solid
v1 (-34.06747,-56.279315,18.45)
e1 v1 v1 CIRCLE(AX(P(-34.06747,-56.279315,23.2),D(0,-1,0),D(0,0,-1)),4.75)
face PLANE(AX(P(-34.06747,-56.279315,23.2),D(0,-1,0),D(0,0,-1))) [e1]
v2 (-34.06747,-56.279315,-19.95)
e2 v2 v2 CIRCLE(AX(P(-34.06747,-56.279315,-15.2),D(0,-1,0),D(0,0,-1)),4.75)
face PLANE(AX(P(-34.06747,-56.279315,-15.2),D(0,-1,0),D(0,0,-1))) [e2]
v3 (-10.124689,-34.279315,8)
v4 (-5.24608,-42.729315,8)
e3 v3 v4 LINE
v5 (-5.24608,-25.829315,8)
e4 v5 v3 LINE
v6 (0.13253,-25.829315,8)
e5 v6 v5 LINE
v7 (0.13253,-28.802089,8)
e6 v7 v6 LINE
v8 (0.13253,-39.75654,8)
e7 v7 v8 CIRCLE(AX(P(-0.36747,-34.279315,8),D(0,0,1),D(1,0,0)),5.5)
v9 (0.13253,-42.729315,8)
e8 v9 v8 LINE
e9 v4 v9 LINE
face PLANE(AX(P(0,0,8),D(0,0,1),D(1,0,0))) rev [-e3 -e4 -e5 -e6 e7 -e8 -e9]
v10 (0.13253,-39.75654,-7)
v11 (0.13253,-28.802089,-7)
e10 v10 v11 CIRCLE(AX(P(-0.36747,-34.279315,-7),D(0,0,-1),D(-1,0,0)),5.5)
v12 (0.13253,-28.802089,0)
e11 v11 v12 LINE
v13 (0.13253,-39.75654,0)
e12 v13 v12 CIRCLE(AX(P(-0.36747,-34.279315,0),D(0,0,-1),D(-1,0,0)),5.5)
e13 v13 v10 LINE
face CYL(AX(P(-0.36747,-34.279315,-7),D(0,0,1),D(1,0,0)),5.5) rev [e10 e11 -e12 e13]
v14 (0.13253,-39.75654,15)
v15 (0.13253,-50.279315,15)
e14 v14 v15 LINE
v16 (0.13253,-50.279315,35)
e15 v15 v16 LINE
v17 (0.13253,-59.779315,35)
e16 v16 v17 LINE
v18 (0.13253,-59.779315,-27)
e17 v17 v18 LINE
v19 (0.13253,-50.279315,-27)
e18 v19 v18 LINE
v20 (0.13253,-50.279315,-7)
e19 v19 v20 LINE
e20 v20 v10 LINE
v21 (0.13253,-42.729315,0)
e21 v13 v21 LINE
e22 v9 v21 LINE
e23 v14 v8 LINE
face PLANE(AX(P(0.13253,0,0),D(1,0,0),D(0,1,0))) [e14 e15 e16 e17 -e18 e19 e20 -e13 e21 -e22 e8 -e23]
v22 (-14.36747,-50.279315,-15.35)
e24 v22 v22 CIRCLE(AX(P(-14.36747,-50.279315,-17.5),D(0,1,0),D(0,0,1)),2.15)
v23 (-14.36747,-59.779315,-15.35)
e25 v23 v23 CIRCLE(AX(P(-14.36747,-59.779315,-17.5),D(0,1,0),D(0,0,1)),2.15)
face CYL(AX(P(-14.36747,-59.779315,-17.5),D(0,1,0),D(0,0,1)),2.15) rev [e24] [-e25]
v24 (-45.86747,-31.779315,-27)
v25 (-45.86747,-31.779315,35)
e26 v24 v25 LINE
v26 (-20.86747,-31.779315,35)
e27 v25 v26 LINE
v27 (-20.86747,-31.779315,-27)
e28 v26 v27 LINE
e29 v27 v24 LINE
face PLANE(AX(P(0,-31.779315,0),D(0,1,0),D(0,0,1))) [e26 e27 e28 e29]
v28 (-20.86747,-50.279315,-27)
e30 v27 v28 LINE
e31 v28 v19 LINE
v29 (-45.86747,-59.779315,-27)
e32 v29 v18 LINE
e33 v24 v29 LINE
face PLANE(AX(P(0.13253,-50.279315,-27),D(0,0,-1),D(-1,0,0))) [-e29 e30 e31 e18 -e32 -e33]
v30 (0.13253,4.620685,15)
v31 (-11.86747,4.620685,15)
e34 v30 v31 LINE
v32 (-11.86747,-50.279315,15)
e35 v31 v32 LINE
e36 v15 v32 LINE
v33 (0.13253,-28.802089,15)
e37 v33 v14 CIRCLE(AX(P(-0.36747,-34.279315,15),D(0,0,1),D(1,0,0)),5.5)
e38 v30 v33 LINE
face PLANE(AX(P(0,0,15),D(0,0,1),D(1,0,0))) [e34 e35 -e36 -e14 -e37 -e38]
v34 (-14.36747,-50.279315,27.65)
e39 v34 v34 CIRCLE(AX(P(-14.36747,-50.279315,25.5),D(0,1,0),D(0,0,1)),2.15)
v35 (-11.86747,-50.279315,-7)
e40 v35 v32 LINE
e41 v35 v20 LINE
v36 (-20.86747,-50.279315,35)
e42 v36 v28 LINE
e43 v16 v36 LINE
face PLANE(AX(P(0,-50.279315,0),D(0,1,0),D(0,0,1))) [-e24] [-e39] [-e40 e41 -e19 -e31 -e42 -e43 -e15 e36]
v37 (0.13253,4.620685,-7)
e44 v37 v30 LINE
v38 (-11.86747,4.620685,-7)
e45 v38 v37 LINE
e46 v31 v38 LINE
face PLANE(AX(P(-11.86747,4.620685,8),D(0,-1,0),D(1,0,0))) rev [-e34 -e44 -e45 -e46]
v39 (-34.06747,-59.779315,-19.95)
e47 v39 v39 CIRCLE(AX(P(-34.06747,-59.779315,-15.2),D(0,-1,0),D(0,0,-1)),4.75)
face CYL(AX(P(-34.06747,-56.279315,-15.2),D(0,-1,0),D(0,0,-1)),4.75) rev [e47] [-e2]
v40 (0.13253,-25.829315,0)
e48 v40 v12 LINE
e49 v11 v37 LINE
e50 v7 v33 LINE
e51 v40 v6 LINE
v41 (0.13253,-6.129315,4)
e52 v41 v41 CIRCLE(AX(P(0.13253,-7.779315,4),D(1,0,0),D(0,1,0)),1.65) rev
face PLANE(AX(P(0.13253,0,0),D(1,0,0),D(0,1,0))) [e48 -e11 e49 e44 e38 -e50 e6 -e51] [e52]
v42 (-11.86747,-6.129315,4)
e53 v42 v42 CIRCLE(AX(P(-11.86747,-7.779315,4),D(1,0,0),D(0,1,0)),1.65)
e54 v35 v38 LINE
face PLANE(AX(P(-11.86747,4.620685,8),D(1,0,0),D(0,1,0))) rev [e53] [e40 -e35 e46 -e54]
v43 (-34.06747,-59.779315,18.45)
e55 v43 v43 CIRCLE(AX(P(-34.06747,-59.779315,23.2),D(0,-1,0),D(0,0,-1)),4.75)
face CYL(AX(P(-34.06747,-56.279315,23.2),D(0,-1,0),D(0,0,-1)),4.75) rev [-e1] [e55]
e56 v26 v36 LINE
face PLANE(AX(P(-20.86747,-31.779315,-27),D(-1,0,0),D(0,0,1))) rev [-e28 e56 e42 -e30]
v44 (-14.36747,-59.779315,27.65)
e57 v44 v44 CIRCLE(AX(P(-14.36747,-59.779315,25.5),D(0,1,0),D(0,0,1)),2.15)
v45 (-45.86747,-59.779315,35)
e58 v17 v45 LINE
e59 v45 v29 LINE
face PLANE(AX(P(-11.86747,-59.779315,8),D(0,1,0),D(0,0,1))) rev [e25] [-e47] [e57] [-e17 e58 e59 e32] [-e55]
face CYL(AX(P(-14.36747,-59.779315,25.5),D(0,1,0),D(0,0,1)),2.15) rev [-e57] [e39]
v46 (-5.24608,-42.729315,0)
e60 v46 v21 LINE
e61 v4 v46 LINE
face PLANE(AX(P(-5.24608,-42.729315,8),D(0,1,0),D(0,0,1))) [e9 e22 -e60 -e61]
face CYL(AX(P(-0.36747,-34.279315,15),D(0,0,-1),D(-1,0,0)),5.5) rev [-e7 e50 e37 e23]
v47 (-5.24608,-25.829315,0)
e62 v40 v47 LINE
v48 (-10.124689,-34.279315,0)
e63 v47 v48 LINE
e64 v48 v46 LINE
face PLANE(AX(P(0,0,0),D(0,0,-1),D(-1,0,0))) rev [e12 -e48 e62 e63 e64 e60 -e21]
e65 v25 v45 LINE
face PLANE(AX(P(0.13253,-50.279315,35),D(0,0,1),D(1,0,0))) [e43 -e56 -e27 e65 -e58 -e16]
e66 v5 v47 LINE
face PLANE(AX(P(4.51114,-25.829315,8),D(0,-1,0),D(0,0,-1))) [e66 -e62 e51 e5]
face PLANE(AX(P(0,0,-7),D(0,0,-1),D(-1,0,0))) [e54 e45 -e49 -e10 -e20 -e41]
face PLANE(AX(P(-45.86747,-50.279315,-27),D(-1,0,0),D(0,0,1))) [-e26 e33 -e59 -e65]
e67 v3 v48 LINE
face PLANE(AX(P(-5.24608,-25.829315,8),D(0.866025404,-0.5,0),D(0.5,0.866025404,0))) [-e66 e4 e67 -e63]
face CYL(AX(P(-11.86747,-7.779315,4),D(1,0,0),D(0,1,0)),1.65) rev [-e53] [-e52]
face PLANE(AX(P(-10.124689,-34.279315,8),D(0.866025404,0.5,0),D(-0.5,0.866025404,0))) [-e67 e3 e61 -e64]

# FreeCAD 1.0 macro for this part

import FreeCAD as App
import Part
import Sketcher
Q = App.Units.Quantity


def add_polygon(sketch, points):
    """Adds a closed chain of lines whose ends are joined by coincident constraints."""
    first, n = sketch.GeometryCount, len(points)
    for a, b in zip(points, points[1:] + points[:1]):
        sketch.addGeometry(Part.LineSegment(App.Vector(*a, 0), App.Vector(*b, 0)), False)
    for i in range(n):
        sketch.addConstraint(Sketcher.Constraint("Coincident", first + i, 2, first + (i + 1) % n, 1))

doc = App.newDocument("Part")
body = doc.addObject("PartDesign::Body", "Body")

sketch1 = doc.addObject("Sketcher::SketchObject", "Sketch")
body.addObject(sketch1)
sketch1.AttachmentSupport = (doc.XY_Plane, [""])
sketch1.MapMode = "FlatFace"
add_polygon(sketch1, [(-12, 5), (-12, -60), (11, -60), (11, 5)])
add_polygon(sketch1, [(5, -26), (9, -34), (5, -43), (-5, -43), (-10, -34), (-5, -26)])
sketch1.addConstraint(Sketcher.Constraint("Vertical", 0))
sketch1.addConstraint(Sketcher.Constraint("Horizontal", 1))
sketch1.addConstraint(Sketcher.Constraint("Vertical", 2))
sketch1.addConstraint(Sketcher.Constraint("Horizontal", 3))
sketch1.addConstraint(Sketcher.Constraint("Horizontal", 6))
sketch1.addConstraint(Sketcher.Constraint("Horizontal", 9))
sketch1.addConstraint(Sketcher.Constraint("Parallel", 4, 7))
sketch1.addConstraint(Sketcher.Constraint("Parallel", 5, 8))
sketch1.addConstraint(Sketcher.Constraint("Horizontal", 4, 2, 7, 2))
sketch1.addConstraint(Sketcher.Constraint("Vertical", 6, 2, 8, 2))
sketch1.addConstraint(Sketcher.Constraint("Vertical", 5, 2, 9, 2))
sketch1.addConstraint(Sketcher.Constraint("DistanceX", 1, 1, 1, 2, 23.0))
sketch1.addConstraint(Sketcher.Constraint("Angle", 4, Q("-60 deg")))
sketch1.addConstraint(Sketcher.Constraint("DistanceY", 0, 2, 0, 1, 64.4))
sketch1.addConstraint(Sketcher.Constraint("DistanceY", 1, 2, 4, 2, 25.5))
sketch1.addConstraint(Sketcher.Constraint("DistanceY", 6, 2, 8, 2, 16.9))
sketch1.addConstraint(Sketcher.Constraint("DistanceX", 6, 2, 6, 1, 9.75722))
sketch1.addConstraint(Sketcher.Constraint("DistanceX", 0, 2, -1, 1, 11.86747))
sketch1.addConstraint(Sketcher.Constraint("DistanceX", -1, 1, 4, 2, 9.38975))
sketch1.addConstraint(Sketcher.Constraint("DistanceY", 0, 2, -1, 1, 59.779315))
pad1 = doc.addObject("PartDesign::Pad", "Pad")
body.addObject(pad1)
pad1.Profile = sketch1
pad1.Length = 8

sketch2 = doc.addObject("Sketcher::SketchObject", "Sketch001")
body.addObject(sketch2)
sketch2.AttachmentSupport = (doc.XY_Plane, [""])
sketch2.MapMode = "FlatFace"
sketch2.AttachmentOffset = App.Placement(App.Vector(0, 0, 8), App.Rotation())
add_polygon(sketch2, [(-12, 5), (-12, -60), (11, -60), (11, 5)])
sketch2.addGeometry(Part.Circle(App.Vector(0, -34, 0), App.Vector(0, 0, 1), 6), False)
sketch2.addConstraint(Sketcher.Constraint("Vertical", 0))
sketch2.addConstraint(Sketcher.Constraint("Horizontal", 1))
sketch2.addConstraint(Sketcher.Constraint("Vertical", 2))
sketch2.addConstraint(Sketcher.Constraint("Horizontal", 3))
sketch2.addConstraint(Sketcher.Constraint("Diameter", 4, 11.0))
sketch2.addConstraint(Sketcher.Constraint("DistanceX", 1, 1, 1, 2, 23.0))
sketch2.addConstraint(Sketcher.Constraint("DistanceY", 0, 2, 0, 1, 64.4))
sketch2.addConstraint(Sketcher.Constraint("DistanceX", 0, 2, 4, 3, 11.5))
sketch2.addConstraint(Sketcher.Constraint("DistanceY", 0, 2, 4, 3, 25.5))
sketch2.addConstraint(Sketcher.Constraint("DistanceX", 4, 3, -1, 1, 0.36747))
sketch2.addConstraint(Sketcher.Constraint("DistanceY", 4, 3, -1, 1, 34.279315))
pad2 = doc.addObject("PartDesign::Pad", "Pad001")
body.addObject(pad2)
pad2.Profile = sketch2
pad2.Length = 7

sketch3 = doc.addObject("Sketcher::SketchObject", "Sketch002")
body.addObject(sketch3)
sketch3.AttachmentSupport = (doc.XY_Plane, [""])
sketch3.MapMode = "FlatFace"
add_polygon(sketch3, [(11, 5), (11, -60), (-12, -60), (-12, 5)])
sketch3.addGeometry(Part.Circle(App.Vector(0, -34, 0), App.Vector(0, 0, 1), 6), False)
sketch3.addConstraint(Sketcher.Constraint("Vertical", 0))
sketch3.addConstraint(Sketcher.Constraint("Horizontal", 1))
sketch3.addConstraint(Sketcher.Constraint("Vertical", 2))
sketch3.addConstraint(Sketcher.Constraint("Horizontal", 3))
sketch3.addConstraint(Sketcher.Constraint("Diameter", 4, 11.0))
sketch3.addConstraint(Sketcher.Constraint("DistanceX", 1, 2, 1, 1, 23.0))
sketch3.addConstraint(Sketcher.Constraint("DistanceY", 0, 2, 0, 1, 64.4))
sketch3.addConstraint(Sketcher.Constraint("DistanceX", 4, 3, 0, 2, 11.5))
sketch3.addConstraint(Sketcher.Constraint("DistanceY", 0, 2, 4, 3, 25.5))
sketch3.addConstraint(Sketcher.Constraint("DistanceX", 4, 3, -1, 1, 0.36747))
sketch3.addConstraint(Sketcher.Constraint("DistanceY", 4, 3, -1, 1, 34.279315))
pad3 = doc.addObject("PartDesign::Pad", "Pad002")
body.addObject(pad3)
pad3.Profile = sketch3
pad3.Length = 7
pad3.Reversed = True

sketch4 = doc.addObject("Sketcher::SketchObject", "Sketch003")
body.addObject(sketch4)
sketch4.AttachmentSupport = (doc.YZ_Plane, [""])
sketch4.MapMode = "FlatFace"
sketch4.AttachmentOffset = App.Placement(App.Vector(0, 0, 11.13253), App.Rotation())
sketch4.addGeometry(Part.Circle(App.Vector(-7.8, 4, 0), App.Vector(0, 0, 1), 1.6), False)
sketch4.addConstraint(Sketcher.Constraint("Diameter", 0, 3.3))
sketch4.addConstraint(Sketcher.Constraint("DistanceY", -1, 1, 0, 3, 4.0))
sketch4.addConstraint(Sketcher.Constraint("DistanceX", 0, 3, -1, 1, 7.779315))
pocket1 = doc.addObject("PartDesign::Pocket", "Pocket")
body.addObject(pocket1)
pocket1.Profile = sketch4
pocket1.Type = "ThroughAll"

sketch5 = doc.addObject("Sketcher::SketchObject", "Sketch004")
body.addObject(sketch5)
sketch5.AttachmentSupport = (doc.YZ_Plane, [""])
sketch5.MapMode = "FlatFace"
sketch5.AttachmentOffset = App.Placement(App.Vector(0, 0, 11.13253), App.Rotation())
add_polygon(sketch5, [(5, 15), (-60, 15), (-60, -7), (5, -7)])
sketch5.addConstraint(Sketcher.Constraint("Horizontal", 0))
sketch5.addConstraint(Sketcher.Constraint("Vertical", 1))
sketch5.addConstraint(Sketcher.Constraint("Horizontal", 2))
sketch5.addConstraint(Sketcher.Constraint("Vertical", 3))
sketch5.addConstraint(Sketcher.Constraint("DistanceY", 1, 2, 1, 1, 22.0))
sketch5.addConstraint(Sketcher.Constraint("DistanceX", 0, 2, 0, 1, 64.4))
sketch5.addConstraint(Sketcher.Constraint("DistanceY", -1, 1, 0, 2, 15.0))
sketch5.addConstraint(Sketcher.Constraint("DistanceX", 0, 2, -1, 1, 59.779315))
pocket2 = doc.addObject("PartDesign::Pocket", "Pocket001")
body.addObject(pocket2)
pocket2.Profile = sketch5
pocket2.Length = 11

sketch6 = doc.addObject("Sketcher::SketchObject", "Sketch005")
body.addObject(sketch6)
sketch6.AttachmentSupport = (doc.XZ_Plane, [""])
sketch6.MapMode = "FlatFace"
sketch6.AttachmentOffset = App.Placement(App.Vector(0, 0, 59.779315), App.Rotation())
add_polygon(sketch6, [(0, 35), (-46, 35), (-46, -27), (0, -27)])
sketch6.addConstraint(Sketcher.Constraint("Horizontal", 0))
sketch6.addConstraint(Sketcher.Constraint("Vertical", 1))
sketch6.addConstraint(Sketcher.Constraint("Horizontal", 2))
sketch6.addConstraint(Sketcher.Constraint("Vertical", 3))
sketch6.addConstraint(Sketcher.Constraint("DistanceX", 0, 2, 0, 1, 46.0))
sketch6.addConstraint(Sketcher.Constraint("DistanceY", 1, 2, 1, 1, 62.0))
sketch6.addConstraint(Sketcher.Constraint("DistanceY", -1, 1, 0, 2, 35.0))
sketch6.addConstraint(Sketcher.Constraint("DistanceX", 0, 2, -1, 1, 45.86747))
pad4 = doc.addObject("PartDesign::Pad", "Pad003")
body.addObject(pad4)
pad4.Profile = sketch6
pad4.Length = 9.5
pad4.Reversed = True

sketch7 = doc.addObject("Sketcher::SketchObject", "Sketch006")
body.addObject(sketch7)
sketch7.AttachmentSupport = (doc.XZ_Plane, [""])
sketch7.MapMode = "FlatFace"
sketch7.AttachmentOffset = App.Placement(App.Vector(0, 0, 50.279315), App.Rotation())
sketch7.addGeometry(Part.Circle(App.Vector(-14.4, -17.5, 0), App.Vector(0, 0, 1), 2.1), False)
sketch7.addGeometry(Part.Circle(App.Vector(-14.4, 25.5, 0), App.Vector(0, 0, 1), 2.1), False)
sketch7.addConstraint(Sketcher.Constraint("Equal", 0, 1))
sketch7.addConstraint(Sketcher.Constraint("Vertical", 0, 3, 1, 3))
sketch7.addConstraint(Sketcher.Constraint("Diameter", 0, 4.3))
sketch7.addConstraint(Sketcher.Constraint("DistanceY", 0, 3, 1, 3, 43.0))
sketch7.addConstraint(Sketcher.Constraint("DistanceY", 0, 3, -1, 1, 17.5))
sketch7.addConstraint(Sketcher.Constraint("DistanceX", 0, 3, -1, 1, 14.36747))
pocket3 = doc.addObject("PartDesign::Pocket", "Pocket002")
body.addObject(pocket3)
pocket3.Profile = sketch7
pocket3.Type = "ThroughAll"
pocket3.Reversed = True

sketch8 = doc.addObject("Sketcher::SketchObject", "Sketch007")
body.addObject(sketch8)
sketch8.AttachmentSupport = (doc.XZ_Plane, [""])
sketch8.MapMode = "FlatFace"
sketch8.AttachmentOffset = App.Placement(App.Vector(0, 0, 59.779315), App.Rotation())
sketch8.addGeometry(Part.Circle(App.Vector(-34.1, 23.2, 0), App.Vector(0, 0, 1), 4.8), False)
sketch8.addGeometry(Part.Circle(App.Vector(-34.1, -15.2, 0), App.Vector(0, 0, 1), 4.8), False)
sketch8.addConstraint(Sketcher.Constraint("Equal", 0, 1))
sketch8.addConstraint(Sketcher.Constraint("Vertical", 0, 3, 1, 3))
sketch8.addConstraint(Sketcher.Constraint("Diameter", 0, 9.5))
sketch8.addConstraint(Sketcher.Constraint("DistanceY", -1, 1, 0, 3, 23.2))
sketch8.addConstraint(Sketcher.Constraint("DistanceY", 1, 3, -1, 1, 15.2))
sketch8.addConstraint(Sketcher.Constraint("DistanceX", 0, 3, -1, 1, 34.06747))
pocket4 = doc.addObject("PartDesign::Pocket", "Pocket003")
body.addObject(pocket4)
pocket4.Profile = sketch8
pocket4.Length = 3.5

sketch9 = doc.addObject("Sketcher::SketchObject", "Sketch008")
body.addObject(sketch9)
sketch9.AttachmentSupport = (doc.XZ_Plane, [""])
sketch9.MapMode = "FlatFace"
sketch9.AttachmentOffset = App.Placement(App.Vector(0, 0, 50.279315), App.Rotation())
add_polygon(sketch9, [(-46, -27), (-46, 35), (-21, 35), (-21, -27)])
sketch9.addConstraint(Sketcher.Constraint("Vertical", 0))
sketch9.addConstraint(Sketcher.Constraint("Horizontal", 1))
sketch9.addConstraint(Sketcher.Constraint("Vertical", 2))
sketch9.addConstraint(Sketcher.Constraint("Horizontal", 3))
sketch9.addConstraint(Sketcher.Constraint("DistanceX", 1, 1, 1, 2, 25.0))
sketch9.addConstraint(Sketcher.Constraint("DistanceY", 0, 1, 0, 2, 62.0))
sketch9.addConstraint(Sketcher.Constraint("DistanceY", -1, 1, 0, 2, 35.0))
sketch9.addConstraint(Sketcher.Constraint("DistanceX", 0, 2, -1, 1, 45.86747))
pad5 = doc.addObject("PartDesign::Pad", "Pad004")
body.addObject(pad5)
pad5.Profile = sketch9
pad5.Length = 18.5
pad5.Reversed = True

doc.recompute()
